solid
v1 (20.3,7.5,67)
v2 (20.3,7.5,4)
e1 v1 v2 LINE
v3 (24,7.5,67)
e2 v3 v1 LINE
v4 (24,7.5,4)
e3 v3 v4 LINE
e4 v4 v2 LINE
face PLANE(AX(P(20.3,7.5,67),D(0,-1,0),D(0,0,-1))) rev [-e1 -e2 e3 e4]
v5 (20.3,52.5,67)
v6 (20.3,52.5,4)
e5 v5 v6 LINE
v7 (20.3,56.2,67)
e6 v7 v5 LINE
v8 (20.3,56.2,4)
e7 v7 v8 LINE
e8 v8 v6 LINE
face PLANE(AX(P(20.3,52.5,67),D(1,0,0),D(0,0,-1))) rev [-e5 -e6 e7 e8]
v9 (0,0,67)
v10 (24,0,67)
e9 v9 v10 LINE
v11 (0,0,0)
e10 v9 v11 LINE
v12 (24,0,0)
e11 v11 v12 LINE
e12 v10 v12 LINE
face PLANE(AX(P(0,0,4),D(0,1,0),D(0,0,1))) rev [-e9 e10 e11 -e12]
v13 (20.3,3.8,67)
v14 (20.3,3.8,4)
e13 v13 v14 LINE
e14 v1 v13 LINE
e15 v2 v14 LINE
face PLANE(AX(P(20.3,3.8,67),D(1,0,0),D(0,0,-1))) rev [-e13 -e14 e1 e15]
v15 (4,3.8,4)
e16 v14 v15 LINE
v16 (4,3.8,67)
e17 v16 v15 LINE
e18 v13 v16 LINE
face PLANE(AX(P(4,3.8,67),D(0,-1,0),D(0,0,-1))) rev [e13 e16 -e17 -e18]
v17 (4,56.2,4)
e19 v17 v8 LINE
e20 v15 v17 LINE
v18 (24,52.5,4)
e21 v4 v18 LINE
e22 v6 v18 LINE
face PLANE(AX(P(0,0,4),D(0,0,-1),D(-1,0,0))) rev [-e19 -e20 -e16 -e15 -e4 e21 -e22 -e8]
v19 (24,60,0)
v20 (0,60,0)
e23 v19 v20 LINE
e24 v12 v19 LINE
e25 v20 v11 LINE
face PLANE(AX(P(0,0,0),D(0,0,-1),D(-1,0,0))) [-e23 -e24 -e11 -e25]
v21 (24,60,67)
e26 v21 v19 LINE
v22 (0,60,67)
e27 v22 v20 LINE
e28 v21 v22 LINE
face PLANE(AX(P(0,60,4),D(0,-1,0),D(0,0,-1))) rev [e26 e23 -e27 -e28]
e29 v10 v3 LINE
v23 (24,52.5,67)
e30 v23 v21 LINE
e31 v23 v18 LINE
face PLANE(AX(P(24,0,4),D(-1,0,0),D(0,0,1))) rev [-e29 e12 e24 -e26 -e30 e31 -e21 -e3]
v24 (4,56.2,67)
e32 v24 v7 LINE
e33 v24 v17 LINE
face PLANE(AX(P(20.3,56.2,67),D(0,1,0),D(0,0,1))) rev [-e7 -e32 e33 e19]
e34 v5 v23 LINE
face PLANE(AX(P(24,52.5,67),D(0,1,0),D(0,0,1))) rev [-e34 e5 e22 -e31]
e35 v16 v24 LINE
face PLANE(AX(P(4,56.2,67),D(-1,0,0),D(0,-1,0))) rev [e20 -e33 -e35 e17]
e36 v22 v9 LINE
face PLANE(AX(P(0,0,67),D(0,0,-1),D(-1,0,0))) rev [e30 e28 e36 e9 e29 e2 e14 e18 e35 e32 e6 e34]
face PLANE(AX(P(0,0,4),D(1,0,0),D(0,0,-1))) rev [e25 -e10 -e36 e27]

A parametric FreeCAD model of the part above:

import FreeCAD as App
import Part
import Sketcher

V = App.Vector


def add_polygon(sketch, points):
    """Adds a closed chain of lines whose ends are joined by coincident constraints."""
    first, n = sketch.GeometryCount, len(points)
    for a, b in zip(points, points[1:] + points[:1]):
        sketch.addGeometry(Part.LineSegment(App.Vector(*a, 0), App.Vector(*b, 0)), False)
    for i in range(n):
        sketch.addConstraint(Sketcher.Constraint("Coincident", first + i, 2, first + (i + 1) % n, 1))

doc = App.newDocument("Part")
params = doc.addObject("Spreadsheet::Sheet", "Params")
for row, (alias, value) in enumerate([
    ("sketch1_width", "24 mm"),
    ("sketch1_height", "60 mm"),
    ("pad1_length", "4 mm"),
    ("sketch2_width", "24 mm"),
    ("sketch2_height", "60 mm"),
    ("sketch2_width2", "3.7 mm"),
    ("sketch2_width3", "16.3 mm"),
    ("sketch2_height2", "7.5 mm"),
    ("pad2_length", "63 mm"),
], start=1):
    params.set(f"A{row}", alias)
    params.set(f"B{row}", "=" + value)
    params.setAlias(f"B{row}", alias)

body = doc.addObject("PartDesign::Body", "Body")

# Sketch on XY plane
sketch1 = body.newObject("Sketcher::SketchObject", "Sketch")
sketch1.AttachmentSupport = (doc.getObject("XY_Plane"), [""])
sketch1.MapMode = "FlatFace"
add_polygon(sketch1, [(0, 60), (0, 0), (24, 0), (24, 60)])  # lines 0-3
sketch1.addConstraint([
    Sketcher.Constraint("Vertical", 0),
    Sketcher.Constraint("Horizontal", 1),
    Sketcher.Constraint("Vertical", 2),
    Sketcher.Constraint("Horizontal", 3),
    Sketcher.Constraint("Coincident", 0, 2, -1, 1),
    Sketcher.Constraint("DistanceX", 1, 1, 1, 2, 24.0),
    Sketcher.Constraint("DistanceY", 0, 2, 0, 1, 60.0),
])
sketch1.setExpression("Constraints[9]", "Params.sketch1_width")
sketch1.setExpression("Constraints[10]", "Params.sketch1_height")
pad1 = body.newObject("PartDesign::Pad", "Pad")
pad1.Profile = sketch1
pad1.setExpression("Length", "Params.pad1_length")

# Sketch on XY plane
sketch2 = body.newObject("Sketcher::SketchObject", "Sketch001")
sketch2.AttachmentSupport = (doc.getObject("XY_Plane"), [""])
sketch2.MapMode = "FlatFace"
sketch2.AttachmentOffset = App.Placement(V(0, 0, 4), App.Rotation())
add_polygon(sketch2, [(20.3, 52.5), (24, 52.5), (24, 60), (0, 60), (0, 0), (24, 0), (24, 7.5), (20.3, 7.5), (20.3, 3.8), (4, 3.8), (4, 56.2), (20.3, 56.2)])  # lines 0-11
sketch2.addConstraint([
    Sketcher.Constraint("Horizontal", 0),
    Sketcher.Constraint("Vertical", 1),
    Sketcher.Constraint("Horizontal", 2),
    Sketcher.Constraint("Vertical", 3),
    Sketcher.Constraint("Horizontal", 4),
    Sketcher.Constraint("Vertical", 5),
    Sketcher.Constraint("Horizontal", 6),
    Sketcher.Constraint("Vertical", 7),
    Sketcher.Constraint("Horizontal", 8),
    Sketcher.Constraint("Vertical", 9),
    Sketcher.Constraint("Horizontal", 10),
    Sketcher.Constraint("Vertical", 11),
    Sketcher.Constraint("Coincident", 3, 2, -1, 1),
    Sketcher.Constraint("Vertical", 1, 2, 4, 2),
    Sketcher.Constraint("Vertical", 7, 2, 10, 2),
    Sketcher.Constraint("Equal", 1, 5),
    Sketcher.Constraint("Equal", 6, 7),
    Sketcher.Constraint("Equal", 7, 11),
    Sketcher.Constraint("DistanceX", 2, 2, 2, 1, 24.0),
    Sketcher.Constraint("DistanceY", 3, 2, 3, 1, 60.0),
    Sketcher.Constraint("DistanceX", 0, 1, 0, 2, 3.7),
    Sketcher.Constraint("DistanceX", 8, 2, 8, 1, 16.3),
    Sketcher.Constraint("DistanceY", 1, 1, 1, 2, 7.5),
])
sketch2.setExpression("Constraints[30]", "Params.sketch2_width")
sketch2.setExpression("Constraints[31]", "Params.sketch2_height")
sketch2.setExpression("Constraints[32]", "Params.sketch2_width2")
sketch2.setExpression("Constraints[33]", "Params.sketch2_width3")
sketch2.setExpression("Constraints[34]", "Params.sketch2_height2")
pad2 = body.newObject("PartDesign::Pad", "Pad001")
pad2.Profile = sketch2
pad2.setExpression("Length", "Params.pad2_length")

doc.recompute()
